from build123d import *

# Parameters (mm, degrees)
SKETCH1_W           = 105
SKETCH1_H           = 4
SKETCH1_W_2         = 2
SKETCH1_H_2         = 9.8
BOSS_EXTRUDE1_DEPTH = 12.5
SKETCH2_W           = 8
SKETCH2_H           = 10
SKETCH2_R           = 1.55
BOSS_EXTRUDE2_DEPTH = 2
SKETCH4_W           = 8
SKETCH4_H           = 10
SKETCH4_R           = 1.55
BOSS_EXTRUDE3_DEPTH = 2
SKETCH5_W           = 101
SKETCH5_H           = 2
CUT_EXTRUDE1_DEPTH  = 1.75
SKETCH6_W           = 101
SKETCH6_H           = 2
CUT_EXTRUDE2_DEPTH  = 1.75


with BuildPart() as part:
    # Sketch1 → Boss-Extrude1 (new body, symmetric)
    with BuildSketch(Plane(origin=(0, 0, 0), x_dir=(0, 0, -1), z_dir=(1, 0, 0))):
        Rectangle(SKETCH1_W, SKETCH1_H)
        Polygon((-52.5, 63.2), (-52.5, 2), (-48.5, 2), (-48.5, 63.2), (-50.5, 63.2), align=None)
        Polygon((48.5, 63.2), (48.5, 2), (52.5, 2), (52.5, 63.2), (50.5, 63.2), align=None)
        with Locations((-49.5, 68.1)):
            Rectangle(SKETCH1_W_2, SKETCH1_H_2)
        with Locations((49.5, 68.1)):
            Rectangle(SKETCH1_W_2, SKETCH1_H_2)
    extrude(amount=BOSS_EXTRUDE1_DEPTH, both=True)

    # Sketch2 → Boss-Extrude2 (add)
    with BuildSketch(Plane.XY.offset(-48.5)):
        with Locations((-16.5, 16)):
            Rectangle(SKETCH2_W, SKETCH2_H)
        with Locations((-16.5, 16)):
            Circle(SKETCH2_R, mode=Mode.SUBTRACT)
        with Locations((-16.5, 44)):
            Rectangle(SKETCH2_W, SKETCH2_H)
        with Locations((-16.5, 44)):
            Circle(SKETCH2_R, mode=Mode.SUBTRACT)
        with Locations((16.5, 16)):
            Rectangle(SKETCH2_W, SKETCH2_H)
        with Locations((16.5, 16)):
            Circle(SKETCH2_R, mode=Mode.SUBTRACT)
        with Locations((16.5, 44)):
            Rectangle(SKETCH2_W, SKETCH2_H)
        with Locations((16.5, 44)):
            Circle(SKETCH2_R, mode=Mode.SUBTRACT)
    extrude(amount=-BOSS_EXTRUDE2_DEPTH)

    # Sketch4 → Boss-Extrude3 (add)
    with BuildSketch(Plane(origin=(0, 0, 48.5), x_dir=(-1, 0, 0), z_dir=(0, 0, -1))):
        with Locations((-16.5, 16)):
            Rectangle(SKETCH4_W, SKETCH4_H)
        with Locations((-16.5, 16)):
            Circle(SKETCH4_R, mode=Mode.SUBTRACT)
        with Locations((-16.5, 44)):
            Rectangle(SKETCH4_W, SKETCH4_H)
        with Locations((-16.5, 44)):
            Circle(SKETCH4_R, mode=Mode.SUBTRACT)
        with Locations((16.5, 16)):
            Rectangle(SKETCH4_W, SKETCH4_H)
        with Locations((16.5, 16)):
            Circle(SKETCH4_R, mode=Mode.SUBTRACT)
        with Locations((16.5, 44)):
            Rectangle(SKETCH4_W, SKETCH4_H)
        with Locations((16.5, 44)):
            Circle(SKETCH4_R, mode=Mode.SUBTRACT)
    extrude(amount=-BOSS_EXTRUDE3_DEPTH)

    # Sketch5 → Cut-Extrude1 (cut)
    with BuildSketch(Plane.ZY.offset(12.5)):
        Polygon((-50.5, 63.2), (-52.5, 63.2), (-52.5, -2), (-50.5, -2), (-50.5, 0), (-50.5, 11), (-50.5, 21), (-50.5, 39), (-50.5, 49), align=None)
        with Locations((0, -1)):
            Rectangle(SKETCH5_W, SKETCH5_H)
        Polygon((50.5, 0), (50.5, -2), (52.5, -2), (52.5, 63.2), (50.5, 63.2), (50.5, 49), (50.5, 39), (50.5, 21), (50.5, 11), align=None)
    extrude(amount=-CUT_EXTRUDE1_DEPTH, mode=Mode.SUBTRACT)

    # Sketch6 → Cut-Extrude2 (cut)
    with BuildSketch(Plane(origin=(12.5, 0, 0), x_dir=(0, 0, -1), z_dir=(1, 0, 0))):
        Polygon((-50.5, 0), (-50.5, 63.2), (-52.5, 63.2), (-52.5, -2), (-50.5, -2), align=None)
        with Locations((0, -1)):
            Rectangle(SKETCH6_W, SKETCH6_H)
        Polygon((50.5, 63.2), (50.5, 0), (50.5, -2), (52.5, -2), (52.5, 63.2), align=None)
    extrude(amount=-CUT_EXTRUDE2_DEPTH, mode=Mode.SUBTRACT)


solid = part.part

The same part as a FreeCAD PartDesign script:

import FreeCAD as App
import Part
import Sketcher

V = App.Vector

doc = App.newDocument("Part")
body = doc.addObject("PartDesign::Body", "Body")

sketch1 = doc.addObject("Sketcher::SketchObject", "Sketch")
body.addObject(sketch1)
sketch1.AttachmentSupport = (doc.YZ_Plane, [""])
sketch1.MapMode = "FlatFace"
sketch1.addGeometry([
    Part.LineSegment(V(-2, 52.5, 0), V(-2, -52.5, 0)),
    Part.LineSegment(V(-2, -52.5, 0), V(63.2, -52.5, 0)),
    Part.LineSegment(V(63.2, -52.5, 0), V(63.2, -50.5, 0)),
    Part.LineSegment(V(63.2, -50.5, 0), V(73, -50.5, 0)),
    Part.LineSegment(V(73, -50.5, 0), V(73, -48.5, 0)),
    Part.LineSegment(V(73, -48.5, 0), V(2, -48.5, 0)),
    Part.LineSegment(V(2, -48.5, 0), V(2, 48.5, 0)),
    Part.LineSegment(V(2, 48.5, 0), V(73, 48.5, 0)),
    Part.LineSegment(V(73, 48.5, 0), V(73, 50.5, 0)),
    Part.LineSegment(V(73, 50.5, 0), V(63.2, 50.5, 0)),
    Part.LineSegment(V(63.2, 50.5, 0), V(63.2, 52.5, 0)),
    Part.LineSegment(V(63.2, 52.5, 0), V(-2, 52.5, 0)),
], False)
sketch1.addConstraint([
    Sketcher.Constraint("Coincident", 0, 2, 1, 1),
    Sketcher.Constraint("Coincident", 1, 2, 2, 1),
    Sketcher.Constraint("Coincident", 2, 2, 3, 1),
    Sketcher.Constraint("Coincident", 3, 2, 4, 1),
    Sketcher.Constraint("Coincident", 4, 2, 5, 1),
    Sketcher.Constraint("Coincident", 5, 2, 6, 1),
    Sketcher.Constraint("Coincident", 6, 2, 7, 1),
    Sketcher.Constraint("Coincident", 7, 2, 8, 1),
    Sketcher.Constraint("Coincident", 8, 2, 9, 1),
    Sketcher.Constraint("Coincident", 9, 2, 10, 1),
    Sketcher.Constraint("Coincident", 10, 2, 11, 1),
    Sketcher.Constraint("Coincident", 11, 2, 0, 1),
    Sketcher.Constraint("Vertical", 0),
    Sketcher.Constraint("Horizontal", 1),
    Sketcher.Constraint("Vertical", 2),
    Sketcher.Constraint("Horizontal", 3),
    Sketcher.Constraint("Vertical", 4),
    Sketcher.Constraint("Horizontal", 5),
    Sketcher.Constraint("Vertical", 6),
    Sketcher.Constraint("Horizontal", 7),
    Sketcher.Constraint("Vertical", 8),
    Sketcher.Constraint("Horizontal", 9),
    Sketcher.Constraint("Vertical", 10),
    Sketcher.Constraint("Horizontal", 11),
    Sketcher.Constraint("Symmetric", 4, 2, 7, 2, -1),
    Sketcher.Constraint("Symmetric", 2, 2, 9, 2, -1),
    Sketcher.Constraint("Equal", 2, 4),
    Sketcher.Constraint("Equal", 8, 10),
    Sketcher.Constraint("DistanceX", 5, 2, 5, 1, 71.0),
    Sketcher.Constraint("DistanceY", 0, 2, 0, 1, 105.0),
    Sketcher.Constraint("DistanceY", 2, 1, 2, 2, 2.0),
    Sketcher.Constraint("DistanceX", 1, 1, 1, 2, 65.2),
    Sketcher.Constraint("DistanceX", 3, 1, 3, 2, 9.8),
    Sketcher.Constraint("DistanceX", 0, 2, -1, 1, 2.0),
])
pad1 = doc.addObject("PartDesign::Pad", "Pad")
body.addObject(pad1)
pad1.Profile = sketch1
pad1.Length = 25
pad1.Midplane = True

sketch2 = doc.addObject("Sketcher::SketchObject", "Sketch001")
body.addObject(sketch2)
sketch2.AttachmentSupport = (doc.XY_Plane, [""])
sketch2.MapMode = "FlatFace"
sketch2.AttachmentOffset = App.Placement(V(0, 0, -48.5), App.Rotation())
sketch2.addGeometry([
    Part.LineSegment(V(-20.5, 21, 0), V(-20.5, 11, 0)),
    Part.LineSegment(V(-20.5, 11, 0), V(-12.5, 11, 0)),
    Part.LineSegment(V(-12.5, 11, 0), V(-12.5, 21, 0)),
    Part.LineSegment(V(-12.5, 21, 0), V(-20.5, 21, 0)),
    Part.Circle(V(-16.5, 16, 0), V(0, 0, 1), 1.55),
    Part.LineSegment(V(-20.5, 49, 0), V(-20.5, 39, 0)),
    Part.LineSegment(V(-20.5, 39, 0), V(-12.5, 39, 0)),
    Part.LineSegment(V(-12.5, 39, 0), V(-12.5, 49, 0)),
    Part.LineSegment(V(-12.5, 49, 0), V(-20.5, 49, 0)),
    Part.Circle(V(-16.5, 44, 0), V(0, 0, 1), 1.55),
    Part.LineSegment(V(12.5, 21, 0), V(12.5, 11, 0)),
    Part.LineSegment(V(12.5, 11, 0), V(20.5, 11, 0)),
    Part.LineSegment(V(20.5, 11, 0), V(20.5, 21, 0)),
    Part.LineSegment(V(20.5, 21, 0), V(12.5, 21, 0)),
    Part.Circle(V(16.5, 16, 0), V(0, 0, 1), 1.55),
    Part.LineSegment(V(12.5, 49, 0), V(12.5, 39, 0)),
    Part.LineSegment(V(12.5, 39, 0), V(20.5, 39, 0)),
    Part.LineSegment(V(20.5, 39, 0), V(20.5, 49, 0)),
    Part.LineSegment(V(20.5, 49, 0), V(12.5, 49, 0)),
    Part.Circle(V(16.5, 44, 0), V(0, 0, 1), 1.55),
], False)
sketch2.addConstraint([
    Sketcher.Constraint("Coincident", 0, 2, 1, 1),
    Sketcher.Constraint("Coincident", 1, 2, 2, 1),
    Sketcher.Constraint("Coincident", 2, 2, 3, 1),
    Sketcher.Constraint("Coincident", 3, 2, 0, 1),
    Sketcher.Constraint("Coincident", 5, 2, 6, 1),
    Sketcher.Constraint("Coincident", 6, 2, 7, 1),
    Sketcher.Constraint("Coincident", 7, 2, 8, 1),
    Sketcher.Constraint("Coincident", 8, 2, 5, 1),
    Sketcher.Constraint("Coincident", 10, 2, 11, 1),
    Sketcher.Constraint("Coincident", 11, 2, 12, 1),
    Sketcher.Constraint("Coincident", 12, 2, 13, 1),
    Sketcher.Constraint("Coincident", 13, 2, 10, 1),
    Sketcher.Constraint("Coincident", 15, 2, 16, 1),
    Sketcher.Constraint("Coincident", 16, 2, 17, 1),
    Sketcher.Constraint("Coincident", 17, 2, 18, 1),
    Sketcher.Constraint("Coincident", 18, 2, 15, 1),
    Sketcher.Constraint("Vertical", 0),
    Sketcher.Constraint("Horizontal", 1),
    Sketcher.Constraint("Vertical", 2),
    Sketcher.Constraint("Horizontal", 3),
    Sketcher.Constraint("Vertical", 5),
    Sketcher.Constraint("Horizontal", 6),
    Sketcher.Constraint("Vertical", 7),
    Sketcher.Constraint("Horizontal", 8),
    Sketcher.Constraint("Vertical", 10),
    Sketcher.Constraint("Horizontal", 11),
    Sketcher.Constraint("Vertical", 12),
    Sketcher.Constraint("Horizontal", 13),
    Sketcher.Constraint("Vertical", 15),
    Sketcher.Constraint("Horizontal", 16),
    Sketcher.Constraint("Vertical", 17),
    Sketcher.Constraint("Horizontal", 18),
    Sketcher.Constraint("Equal", 4, 9),
    Sketcher.Constraint("Equal", 9, 14),
    Sketcher.Constraint("Equal", 14, 19),
    Sketcher.Constraint("Symmetric", 4, 3, 14, 3, -2),
    Sketcher.Constraint("Symmetric", 9, 3, 19, 3, -2),
    Sketcher.Constraint("Symmetric", 1, 2, 10, 2, -2),
    Sketcher.Constraint("Symmetric", 3, 2, 12, 2, -2),
    Sketcher.Constraint("Symmetric", 6, 2, 15, 2, -2),
    Sketcher.Constraint("Symmetric", 8, 2, 17, 2, -2),
    Sketcher.Constraint("Vertical", 4, 3, 9, 3),
    Sketcher.Constraint("Vertical", 3, 2, 5, 2),
    Sketcher.Constraint("Vertical", 2, 2, 6, 2),
    Sketcher.Constraint("Equal", 2, 5),
    Sketcher.Constraint("Diameter", 4, 3.1),
    Sketcher.Constraint("DistanceX", 1, 1, 1, 2, 8.0),
    Sketcher.Constraint("DistanceY", 0, 2, 0, 1, 10.0),
    Sketcher.Constraint("DistanceY", -1, 1, 4, 3, 16.0),
    Sketcher.Constraint("DistanceY", -1, 1, 9, 3, 44.0),
    Sketcher.Constraint("DistanceY", -1, 1, 0, 2, 11.0),
    Sketcher.Constraint("DistanceY", -1, 1, 5, 2, 39.0),
    Sketcher.Constraint("DistanceX", 4, 3, 14, 3, 33.0),
    Sketcher.Constraint("DistanceX", 0, 2, 4, 3, 4.0),
])
pad2 = doc.addObject("PartDesign::Pad", "Pad001")
body.addObject(pad2)
pad2.Profile = sketch2
pad2.Length = 2
pad2.Reversed = True

sketch3 = doc.addObject("Sketcher::SketchObject", "Sketch002")
body.addObject(sketch3)
sketch3.AttachmentSupport = (doc.XY_Plane, [""])
sketch3.MapMode = "FlatFace"
sketch3.AttachmentOffset = App.Placement(V(0, 0, 48.5), App.Rotation())
sketch3.addGeometry([
    Part.LineSegment(V(20.5, 21, 0), V(20.5, 11, 0)),
    Part.LineSegment(V(20.5, 11, 0), V(12.5, 11, 0)),
    Part.LineSegment(V(12.5, 11, 0), V(12.5, 21, 0)),
    Part.LineSegment(V(12.5, 21, 0), V(20.5, 21, 0)),
    Part.Circle(V(16.5, 16, 0), V(0, 0, 1), 1.55),
    Part.LineSegment(V(20.5, 49, 0), V(20.5, 39, 0)),
    Part.LineSegment(V(20.5, 39, 0), V(12.5, 39, 0)),
    Part.LineSegment(V(12.5, 39, 0), V(12.5, 49, 0)),
    Part.LineSegment(V(12.5, 49, 0), V(20.5, 49, 0)),
    Part.Circle(V(16.5, 44, 0), V(0, 0, 1), 1.55),
    Part.LineSegment(V(-12.5, 21, 0), V(-12.5, 11, 0)),
    Part.LineSegment(V(-12.5, 11, 0), V(-20.5, 11, 0)),
    Part.LineSegment(V(-20.5, 11, 0), V(-20.5, 21, 0)),
    Part.LineSegment(V(-20.5, 21, 0), V(-12.5, 21, 0)),
    Part.Circle(V(-16.5, 16, 0), V(0, 0, 1), 1.55),
    Part.LineSegment(V(-12.5, 49, 0), V(-12.5, 39, 0)),
    Part.LineSegment(V(-12.5, 39, 0), V(-20.5, 39, 0)),
    Part.LineSegment(V(-20.5, 39, 0), V(-20.5, 49, 0)),
    Part.LineSegment(V(-20.5, 49, 0), V(-12.5, 49, 0)),
    Part.Circle(V(-16.5, 44, 0), V(0, 0, 1), 1.55),
], False)
sketch3.addConstraint([
    Sketcher.Constraint("Coincident", 0, 2, 1, 1),
    Sketcher.Constraint("Coincident", 1, 2, 2, 1),
    Sketcher.Constraint("Coincident", 2, 2, 3, 1),
    Sketcher.Constraint("Coincident", 3, 2, 0, 1),
    Sketcher.Constraint("Coincident", 5, 2, 6, 1),
    Sketcher.Constraint("Coincident", 6, 2, 7, 1),
    Sketcher.Constraint("Coincident", 7, 2, 8, 1),
    Sketcher.Constraint("Coincident", 8, 2, 5, 1),
    Sketcher.Constraint("Coincident", 10, 2, 11, 1),
    Sketcher.Constraint("Coincident", 11, 2, 12, 1),
    Sketcher.Constraint("Coincident", 12, 2, 13, 1),
    Sketcher.Constraint("Coincident", 13, 2, 10, 1),
    Sketcher.Constraint("Coincident", 15, 2, 16, 1),
    Sketcher.Constraint("Coincident", 16, 2, 17, 1),
    Sketcher.Constraint("Coincident", 17, 2, 18, 1),
    Sketcher.Constraint("Coincident", 18, 2, 15, 1),
    Sketcher.Constraint("Vertical", 0),
    Sketcher.Constraint("Horizontal", 1),
    Sketcher.Constraint("Vertical", 2),
    Sketcher.Constraint("Horizontal", 3),
    Sketcher.Constraint("Vertical", 5),
    Sketcher.Constraint("Horizontal", 6),
    Sketcher.Constraint("Vertical", 7),
    Sketcher.Constraint("Horizontal", 8),
    Sketcher.Constraint("Vertical", 10),
    Sketcher.Constraint("Horizontal", 11),
    Sketcher.Constraint("Vertical", 12),
    Sketcher.Constraint("Horizontal", 13),
    Sketcher.Constraint("Vertical", 15),
    Sketcher.Constraint("Horizontal", 16),
    Sketcher.Constraint("Vertical", 17),
    Sketcher.Constraint("Horizontal", 18),
    Sketcher.Constraint("Equal", 4, 9),
    Sketcher.Constraint("Equal", 9, 14),
    Sketcher.Constraint("Equal", 14, 19),
    Sketcher.Constraint("Symmetric", 4, 3, 14, 3, -2),
    Sketcher.Constraint("Symmetric", 9, 3, 19, 3, -2),
    Sketcher.Constraint("Symmetric", 1, 2, 10, 2, -2),
    Sketcher.Constraint("Symmetric", 3, 2, 12, 2, -2),
    Sketcher.Constraint("Symmetric", 6, 2, 15, 2, -2),
    Sketcher.Constraint("Symmetric", 8, 2, 17, 2, -2),
    Sketcher.Constraint("Vertical", 4, 3, 9, 3),
    Sketcher.Constraint("Vertical", 3, 2, 5, 2),
    Sketcher.Constraint("Vertical", 2, 2, 6, 2),
    Sketcher.Constraint("Equal", 2, 5),
    Sketcher.Constraint("Diameter", 4, 3.1),
    Sketcher.Constraint("DistanceX", 1, 2, 1, 1, 8.0),
    Sketcher.Constraint("DistanceY", 0, 2, 0, 1, 10.0),
    Sketcher.Constraint("DistanceY", -1, 1, 4, 3, 16.0),
    Sketcher.Constraint("DistanceY", -1, 1, 9, 3, 44.0),
    Sketcher.Constraint("DistanceY", -1, 1, 0, 2, 11.0),
    Sketcher.Constraint("DistanceY", -1, 1, 5, 2, 39.0),
    Sketcher.Constraint("DistanceX", 14, 3, 4, 3, 33.0),
    Sketcher.Constraint("DistanceX", 4, 3, 0, 2, 4.0),
])
pad3 = doc.addObject("PartDesign::Pad", "Pad002")
body.addObject(pad3)
pad3.Profile = sketch3
pad3.Length = 2

sketch4 = doc.addObject("Sketcher::SketchObject", "Sketch003")
body.addObject(sketch4)
sketch4.AttachmentSupport = (doc.YZ_Plane, [""])
sketch4.MapMode = "FlatFace"
sketch4.AttachmentOffset = App.Placement(V(0, 0, -12.5), App.Rotation())
sketch4.addGeometry([
    Part.LineSegment(V(63.2, -50.5, 0), V(63.2, -52.5, 0)),
    Part.LineSegment(V(63.2, -52.5, 0), V(-2, -52.5, 0)),
    Part.LineSegment(V(-2, -52.5, 0), V(-2, 52.5, 0)),
    Part.LineSegment(V(-2, 52.5, 0), V(63.2, 52.5, 0)),
    Part.LineSegment(V(63.2, 52.5, 0), V(63.2, 50.5, 0)),
    Part.LineSegment(V(63.2, 50.5, 0), V(0, 50.5, 0)),
    Part.LineSegment(V(0, 50.5, 0), V(0, -50.5, 0)),
    Part.LineSegment(V(0, -50.5, 0), V(63.2, -50.5, 0)),
], False)
sketch4.addConstraint([
    Sketcher.Constraint("Coincident", 0, 2, 1, 1),
    Sketcher.Constraint("Coincident", 1, 2, 2, 1),
    Sketcher.Constraint("Coincident", 2, 2, 3, 1),
    Sketcher.Constraint("Coincident", 3, 2, 4, 1),
    Sketcher.Constraint("Coincident", 4, 2, 5, 1),
    Sketcher.Constraint("Coincident", 5, 2, 6, 1),
    Sketcher.Constraint("Coincident", 6, 2, 7, 1),
    Sketcher.Constraint("Coincident", 7, 2, 0, 1),
    Sketcher.Constraint("Vertical", 0),
    Sketcher.Constraint("Horizontal", 1),
    Sketcher.Constraint("Vertical", 2),
    Sketcher.Constraint("Horizontal", 3),
    Sketcher.Constraint("Vertical", 4),
    Sketcher.Constraint("Horizontal", 5),
    Sketcher.Constraint("Vertical", 6),
    Sketcher.Constraint("Horizontal", 7),
    Sketcher.Constraint("Symmetric", 5, 2, 6, 2, -1, 1),
    Sketcher.Constraint("Symmetric", 0, 2, 3, 2, -1),
    Sketcher.Constraint("DistanceY", 0, 2, 0, 1, 2.0),
    Sketcher.Constraint("DistanceY", 2, 1, 2, 2, 105.0),
    Sketcher.Constraint("DistanceX", 1, 2, 1, 1, 65.2),
    Sketcher.Constraint("DistanceX", 5, 2, 5, 1, 63.2),
])
pocket1 = doc.addObject("PartDesign::Pocket", "Pocket")
body.addObject(pocket1)
pocket1.Profile = sketch4
pocket1.Length = 1.75
pocket1.Reversed = True

sketch5 = doc.addObject("Sketcher::SketchObject", "Sketch004")
body.addObject(sketch5)
sketch5.AttachmentSupport = (doc.YZ_Plane, [""])
sketch5.MapMode = "FlatFace"
sketch5.AttachmentOffset = App.Placement(V(0, 0, 12.5), App.Rotation())
sketch5.addGeometry([
    Part.LineSegment(V(63.2, 50.5, 0), V(63.2, 52.5, 0)),
    Part.LineSegment(V(63.2, 52.5, 0), V(-2, 52.5, 0)),
    Part.LineSegment(V(-2, 52.5, 0), V(-2, -52.5, 0)),
    Part.LineSegment(V(-2, -52.5, 0), V(63.2, -52.5, 0)),
    Part.LineSegment(V(63.2, -52.5, 0), V(63.2, -50.5, 0)),
    Part.LineSegment(V(63.2, -50.5, 0), V(0, -50.5, 0)),
    Part.LineSegment(V(0, -50.5, 0), V(0, 50.5, 0)),
    Part.LineSegment(V(0, 50.5, 0), V(63.2, 50.5, 0)),
], False)
sketch5.addConstraint([
    Sketcher.Constraint("Coincident", 0, 2, 1, 1),
    Sketcher.Constraint("Coincident", 1, 2, 2, 1),
    Sketcher.Constraint("Coincident", 2, 2, 3, 1),
    Sketcher.Constraint("Coincident", 3, 2, 4, 1),
    Sketcher.Constraint("Coincident", 4, 2, 5, 1),
    Sketcher.Constraint("Coincident", 5, 2, 6, 1),
    Sketcher.Constraint("Coincident", 6, 2, 7, 1),
    Sketcher.Constraint("Coincident", 7, 2, 0, 1),
    Sketcher.Constraint("Vertical", 0),
    Sketcher.Constraint("Horizontal", 1),
    Sketcher.Constraint("Vertical", 2),
    Sketcher.Constraint("Horizontal", 3),
    Sketcher.Constraint("Vertical", 4),
    Sketcher.Constraint("Horizontal", 5),
    Sketcher.Constraint("Vertical", 6),
    Sketcher.Constraint("Horizontal", 7),
    Sketcher.Constraint("Symmetric", 5, 2, 6, 2, -1, 1),
    Sketcher.Constraint("Symmetric", 0, 2, 3, 2, -1),
    Sketcher.Constraint("DistanceY", 0, 1, 0, 2, 2.0),
    Sketcher.Constraint("DistanceY", 2, 2, 2, 1, 105.0),
    Sketcher.Constraint("DistanceX", 1, 2, 1, 1, 65.2),
    Sketcher.Constraint("DistanceX", 5, 2, 5, 1, 63.2),
])
pocket2 = doc.addObject("PartDesign::Pocket", "Pocket001")
body.addObject(pocket2)
pocket2.Profile = sketch5
pocket2.Length = 1.75

doc.recompute()
